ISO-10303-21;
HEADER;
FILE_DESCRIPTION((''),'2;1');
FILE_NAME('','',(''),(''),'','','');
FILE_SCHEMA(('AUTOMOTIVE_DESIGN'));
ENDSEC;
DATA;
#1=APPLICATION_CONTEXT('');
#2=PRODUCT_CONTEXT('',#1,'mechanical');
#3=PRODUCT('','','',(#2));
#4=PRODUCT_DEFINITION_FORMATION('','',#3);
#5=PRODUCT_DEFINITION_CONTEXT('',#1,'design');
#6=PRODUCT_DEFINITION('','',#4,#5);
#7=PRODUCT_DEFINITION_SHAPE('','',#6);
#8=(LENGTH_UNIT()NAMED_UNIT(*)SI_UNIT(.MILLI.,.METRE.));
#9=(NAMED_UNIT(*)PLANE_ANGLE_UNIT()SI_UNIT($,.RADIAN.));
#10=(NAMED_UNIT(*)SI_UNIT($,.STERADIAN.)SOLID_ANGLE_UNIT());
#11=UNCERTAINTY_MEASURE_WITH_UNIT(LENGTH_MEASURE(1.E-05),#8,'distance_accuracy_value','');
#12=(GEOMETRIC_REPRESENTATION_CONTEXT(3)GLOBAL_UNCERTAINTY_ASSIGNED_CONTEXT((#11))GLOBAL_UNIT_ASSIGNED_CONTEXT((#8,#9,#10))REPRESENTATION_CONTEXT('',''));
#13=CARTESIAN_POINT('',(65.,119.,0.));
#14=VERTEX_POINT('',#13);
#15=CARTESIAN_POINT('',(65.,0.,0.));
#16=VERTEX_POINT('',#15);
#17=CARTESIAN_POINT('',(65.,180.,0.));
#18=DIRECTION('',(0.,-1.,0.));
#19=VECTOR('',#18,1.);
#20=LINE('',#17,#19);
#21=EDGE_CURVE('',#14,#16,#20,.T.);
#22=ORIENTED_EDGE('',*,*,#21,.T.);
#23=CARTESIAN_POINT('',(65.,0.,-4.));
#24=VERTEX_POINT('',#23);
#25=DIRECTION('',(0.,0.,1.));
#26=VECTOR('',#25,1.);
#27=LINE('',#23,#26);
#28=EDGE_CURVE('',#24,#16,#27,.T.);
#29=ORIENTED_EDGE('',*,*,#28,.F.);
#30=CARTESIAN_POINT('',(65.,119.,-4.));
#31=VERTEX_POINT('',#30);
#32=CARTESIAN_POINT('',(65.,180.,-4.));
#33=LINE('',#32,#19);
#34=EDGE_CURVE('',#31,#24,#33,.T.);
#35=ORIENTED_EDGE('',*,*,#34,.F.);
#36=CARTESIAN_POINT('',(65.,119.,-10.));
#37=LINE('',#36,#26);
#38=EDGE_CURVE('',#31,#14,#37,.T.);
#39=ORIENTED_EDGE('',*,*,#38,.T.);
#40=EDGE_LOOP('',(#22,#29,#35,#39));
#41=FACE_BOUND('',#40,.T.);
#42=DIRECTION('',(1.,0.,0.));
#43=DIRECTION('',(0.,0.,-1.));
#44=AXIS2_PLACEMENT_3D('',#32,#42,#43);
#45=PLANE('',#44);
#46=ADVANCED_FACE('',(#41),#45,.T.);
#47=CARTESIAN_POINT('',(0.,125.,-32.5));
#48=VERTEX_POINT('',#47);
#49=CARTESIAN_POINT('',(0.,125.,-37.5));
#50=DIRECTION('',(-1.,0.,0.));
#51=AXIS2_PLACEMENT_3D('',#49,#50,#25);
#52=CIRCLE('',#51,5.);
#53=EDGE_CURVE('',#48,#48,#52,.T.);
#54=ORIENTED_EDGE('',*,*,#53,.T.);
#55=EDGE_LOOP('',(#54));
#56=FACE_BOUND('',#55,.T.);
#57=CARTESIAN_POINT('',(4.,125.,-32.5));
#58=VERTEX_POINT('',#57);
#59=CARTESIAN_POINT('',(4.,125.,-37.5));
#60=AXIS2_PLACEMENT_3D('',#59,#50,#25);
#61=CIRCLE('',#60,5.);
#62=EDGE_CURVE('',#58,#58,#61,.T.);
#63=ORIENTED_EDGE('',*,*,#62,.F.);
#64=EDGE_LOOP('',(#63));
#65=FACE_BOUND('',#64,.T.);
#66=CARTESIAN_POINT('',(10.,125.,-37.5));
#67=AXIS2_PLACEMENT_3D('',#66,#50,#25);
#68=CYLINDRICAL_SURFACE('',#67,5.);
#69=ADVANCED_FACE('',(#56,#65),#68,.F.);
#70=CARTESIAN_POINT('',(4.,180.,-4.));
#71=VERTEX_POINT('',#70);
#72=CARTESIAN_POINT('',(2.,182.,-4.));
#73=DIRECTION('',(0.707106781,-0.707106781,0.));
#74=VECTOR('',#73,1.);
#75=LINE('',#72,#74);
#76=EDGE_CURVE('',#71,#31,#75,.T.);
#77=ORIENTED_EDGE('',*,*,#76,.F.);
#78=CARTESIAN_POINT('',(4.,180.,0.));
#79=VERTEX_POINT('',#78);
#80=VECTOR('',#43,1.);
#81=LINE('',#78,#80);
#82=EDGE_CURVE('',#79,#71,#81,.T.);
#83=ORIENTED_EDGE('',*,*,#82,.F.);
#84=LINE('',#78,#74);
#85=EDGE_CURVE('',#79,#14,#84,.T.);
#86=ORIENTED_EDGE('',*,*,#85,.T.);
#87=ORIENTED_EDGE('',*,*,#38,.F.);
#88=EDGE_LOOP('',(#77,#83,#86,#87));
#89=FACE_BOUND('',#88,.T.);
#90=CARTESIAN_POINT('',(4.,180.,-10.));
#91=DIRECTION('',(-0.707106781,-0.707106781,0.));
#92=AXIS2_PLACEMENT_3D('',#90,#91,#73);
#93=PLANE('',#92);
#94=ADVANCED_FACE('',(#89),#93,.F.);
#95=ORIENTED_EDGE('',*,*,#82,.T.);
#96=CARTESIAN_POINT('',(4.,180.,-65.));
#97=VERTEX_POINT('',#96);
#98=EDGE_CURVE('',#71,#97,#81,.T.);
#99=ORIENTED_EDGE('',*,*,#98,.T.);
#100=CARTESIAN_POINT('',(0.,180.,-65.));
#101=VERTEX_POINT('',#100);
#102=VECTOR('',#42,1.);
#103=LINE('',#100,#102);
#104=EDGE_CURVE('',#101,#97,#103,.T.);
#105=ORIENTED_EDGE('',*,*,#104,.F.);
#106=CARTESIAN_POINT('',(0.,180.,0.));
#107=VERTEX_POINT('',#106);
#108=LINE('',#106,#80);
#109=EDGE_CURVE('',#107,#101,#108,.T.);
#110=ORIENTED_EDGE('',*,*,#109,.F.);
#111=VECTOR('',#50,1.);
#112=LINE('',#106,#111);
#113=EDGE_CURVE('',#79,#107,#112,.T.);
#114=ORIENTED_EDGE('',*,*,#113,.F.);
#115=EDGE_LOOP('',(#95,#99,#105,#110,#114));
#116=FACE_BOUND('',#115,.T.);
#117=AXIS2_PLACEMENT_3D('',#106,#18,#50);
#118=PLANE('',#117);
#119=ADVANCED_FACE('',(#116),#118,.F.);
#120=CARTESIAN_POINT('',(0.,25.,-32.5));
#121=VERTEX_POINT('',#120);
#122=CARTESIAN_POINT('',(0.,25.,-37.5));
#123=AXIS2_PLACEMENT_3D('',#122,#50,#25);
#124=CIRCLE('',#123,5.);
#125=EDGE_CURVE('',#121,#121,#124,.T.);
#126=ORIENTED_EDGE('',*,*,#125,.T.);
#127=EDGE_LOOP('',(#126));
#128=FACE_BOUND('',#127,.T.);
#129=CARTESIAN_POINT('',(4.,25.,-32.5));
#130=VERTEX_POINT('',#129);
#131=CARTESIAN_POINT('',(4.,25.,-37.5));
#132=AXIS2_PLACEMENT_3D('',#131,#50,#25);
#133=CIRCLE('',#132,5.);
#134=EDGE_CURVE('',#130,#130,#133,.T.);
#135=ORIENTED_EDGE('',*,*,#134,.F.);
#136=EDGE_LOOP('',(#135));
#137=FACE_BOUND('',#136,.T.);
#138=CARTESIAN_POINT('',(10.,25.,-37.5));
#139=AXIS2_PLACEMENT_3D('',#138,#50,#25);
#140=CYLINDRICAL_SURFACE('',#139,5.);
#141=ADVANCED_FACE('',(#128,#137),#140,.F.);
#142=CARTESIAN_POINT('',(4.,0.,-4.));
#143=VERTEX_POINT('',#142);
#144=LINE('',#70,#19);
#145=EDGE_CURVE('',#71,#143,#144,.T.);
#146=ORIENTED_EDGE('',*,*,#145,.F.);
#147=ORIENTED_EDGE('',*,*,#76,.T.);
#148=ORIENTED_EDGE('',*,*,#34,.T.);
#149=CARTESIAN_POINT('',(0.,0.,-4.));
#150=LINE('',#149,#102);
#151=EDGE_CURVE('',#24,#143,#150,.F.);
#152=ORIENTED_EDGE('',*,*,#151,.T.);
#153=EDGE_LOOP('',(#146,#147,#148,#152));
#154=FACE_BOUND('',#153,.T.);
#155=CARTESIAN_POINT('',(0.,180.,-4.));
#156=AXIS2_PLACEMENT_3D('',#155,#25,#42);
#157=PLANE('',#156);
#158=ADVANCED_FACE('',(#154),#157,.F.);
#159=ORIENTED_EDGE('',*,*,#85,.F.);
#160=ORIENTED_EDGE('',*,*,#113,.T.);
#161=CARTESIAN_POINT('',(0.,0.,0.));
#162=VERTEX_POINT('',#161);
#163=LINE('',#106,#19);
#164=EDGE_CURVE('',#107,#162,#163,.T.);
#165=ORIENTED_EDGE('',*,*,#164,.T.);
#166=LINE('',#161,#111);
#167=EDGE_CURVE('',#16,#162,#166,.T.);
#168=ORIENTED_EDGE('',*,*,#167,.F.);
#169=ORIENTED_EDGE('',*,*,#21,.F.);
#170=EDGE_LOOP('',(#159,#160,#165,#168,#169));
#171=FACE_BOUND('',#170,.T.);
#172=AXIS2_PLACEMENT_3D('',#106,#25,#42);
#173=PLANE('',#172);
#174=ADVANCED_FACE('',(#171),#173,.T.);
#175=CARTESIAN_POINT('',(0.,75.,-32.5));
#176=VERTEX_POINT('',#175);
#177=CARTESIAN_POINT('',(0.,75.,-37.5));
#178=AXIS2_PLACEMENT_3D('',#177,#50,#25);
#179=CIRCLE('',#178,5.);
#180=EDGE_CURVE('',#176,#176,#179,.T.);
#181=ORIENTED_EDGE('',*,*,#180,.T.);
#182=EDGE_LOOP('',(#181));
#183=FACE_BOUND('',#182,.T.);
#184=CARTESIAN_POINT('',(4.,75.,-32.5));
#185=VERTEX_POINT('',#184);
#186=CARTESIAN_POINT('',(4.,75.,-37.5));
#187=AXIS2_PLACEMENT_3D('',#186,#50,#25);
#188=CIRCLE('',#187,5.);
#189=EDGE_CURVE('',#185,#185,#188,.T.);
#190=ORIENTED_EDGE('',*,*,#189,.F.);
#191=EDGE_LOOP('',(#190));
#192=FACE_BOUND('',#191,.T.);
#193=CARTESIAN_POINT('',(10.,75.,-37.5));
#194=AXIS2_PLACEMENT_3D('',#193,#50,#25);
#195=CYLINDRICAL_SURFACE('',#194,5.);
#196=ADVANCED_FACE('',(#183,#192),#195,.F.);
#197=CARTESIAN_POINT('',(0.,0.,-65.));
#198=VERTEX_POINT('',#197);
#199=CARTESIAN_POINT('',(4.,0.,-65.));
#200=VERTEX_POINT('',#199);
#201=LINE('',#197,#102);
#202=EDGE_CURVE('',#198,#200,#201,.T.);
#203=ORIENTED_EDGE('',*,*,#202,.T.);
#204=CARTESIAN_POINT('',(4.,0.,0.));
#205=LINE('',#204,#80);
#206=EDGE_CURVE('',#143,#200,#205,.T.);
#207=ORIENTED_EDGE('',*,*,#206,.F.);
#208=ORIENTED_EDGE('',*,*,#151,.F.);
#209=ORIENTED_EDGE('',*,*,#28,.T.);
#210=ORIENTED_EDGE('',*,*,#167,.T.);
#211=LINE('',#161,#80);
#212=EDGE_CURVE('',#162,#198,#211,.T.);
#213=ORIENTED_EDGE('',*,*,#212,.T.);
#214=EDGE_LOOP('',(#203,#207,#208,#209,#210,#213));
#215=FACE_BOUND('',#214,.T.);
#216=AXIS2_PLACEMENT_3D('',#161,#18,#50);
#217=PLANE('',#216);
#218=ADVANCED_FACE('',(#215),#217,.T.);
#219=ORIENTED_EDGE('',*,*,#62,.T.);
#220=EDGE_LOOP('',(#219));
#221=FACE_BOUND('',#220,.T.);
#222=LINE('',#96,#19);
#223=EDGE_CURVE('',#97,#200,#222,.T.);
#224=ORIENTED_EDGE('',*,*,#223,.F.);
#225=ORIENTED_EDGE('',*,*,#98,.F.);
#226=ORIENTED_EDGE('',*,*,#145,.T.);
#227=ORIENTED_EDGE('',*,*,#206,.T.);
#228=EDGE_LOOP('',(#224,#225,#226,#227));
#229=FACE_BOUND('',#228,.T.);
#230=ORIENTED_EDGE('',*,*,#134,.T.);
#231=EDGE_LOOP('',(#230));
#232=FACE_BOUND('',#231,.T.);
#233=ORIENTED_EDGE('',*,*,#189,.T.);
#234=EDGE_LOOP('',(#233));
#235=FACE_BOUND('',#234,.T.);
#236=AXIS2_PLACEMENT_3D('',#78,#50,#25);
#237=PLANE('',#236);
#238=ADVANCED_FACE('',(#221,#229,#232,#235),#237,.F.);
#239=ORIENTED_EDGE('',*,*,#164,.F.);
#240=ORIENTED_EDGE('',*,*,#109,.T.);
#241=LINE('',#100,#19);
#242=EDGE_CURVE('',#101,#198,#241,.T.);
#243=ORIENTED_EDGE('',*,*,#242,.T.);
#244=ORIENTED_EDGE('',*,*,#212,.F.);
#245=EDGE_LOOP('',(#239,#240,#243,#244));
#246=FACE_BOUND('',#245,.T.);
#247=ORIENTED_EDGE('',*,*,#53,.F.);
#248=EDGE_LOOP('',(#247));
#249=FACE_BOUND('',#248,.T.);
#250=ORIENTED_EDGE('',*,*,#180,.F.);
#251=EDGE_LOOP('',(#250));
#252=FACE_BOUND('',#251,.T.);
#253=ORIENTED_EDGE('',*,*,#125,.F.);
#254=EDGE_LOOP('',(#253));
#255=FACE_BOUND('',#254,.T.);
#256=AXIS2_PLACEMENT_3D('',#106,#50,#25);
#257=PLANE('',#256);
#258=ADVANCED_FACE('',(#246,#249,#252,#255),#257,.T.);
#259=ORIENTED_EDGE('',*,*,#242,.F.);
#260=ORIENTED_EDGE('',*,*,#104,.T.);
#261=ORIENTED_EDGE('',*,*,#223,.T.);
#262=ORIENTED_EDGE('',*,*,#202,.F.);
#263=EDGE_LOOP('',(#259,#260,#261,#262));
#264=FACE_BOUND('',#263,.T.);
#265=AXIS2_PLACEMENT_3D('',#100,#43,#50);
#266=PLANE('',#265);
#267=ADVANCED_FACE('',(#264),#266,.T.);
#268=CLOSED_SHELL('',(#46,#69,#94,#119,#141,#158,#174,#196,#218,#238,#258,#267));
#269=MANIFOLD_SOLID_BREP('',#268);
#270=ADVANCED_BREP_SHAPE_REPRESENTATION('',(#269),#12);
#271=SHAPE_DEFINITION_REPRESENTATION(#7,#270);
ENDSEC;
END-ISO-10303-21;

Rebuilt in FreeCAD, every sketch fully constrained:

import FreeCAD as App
import Part
import Sketcher

V = App.Vector
Q = App.Units.Quantity

doc = App.newDocument("Part")
body = doc.addObject("PartDesign::Body", "Body")

# Sketch on XZ plane
sketch1 = doc.addObject("Sketcher::SketchObject", "Sketch")
body.addObject(sketch1)
sketch1.AttachmentSupport = (doc.XZ_Plane, [""])
sketch1.MapMode = "FlatFace"
sketch1.addGeometry([
    Part.LineSegment(V(0, -65, 0), V(0, 0, 0)),  # 0
    Part.LineSegment(V(0, 0, 0), V(65, 0, 0)),  # 1
    Part.LineSegment(V(65, 0, 0), V(65, -4, 0)),  # 2
    Part.LineSegment(V(65, -4, 0), V(4, -4, 0)),  # 3
    Part.LineSegment(V(4, -4, 0), V(4, -65, 0)),  # 4
    Part.LineSegment(V(4, -65, 0), V(0, -65, 0)),  # 5
], False)
sketch1.addConstraint([
    Sketcher.Constraint("Coincident", 0, 2, 1, 1),
    Sketcher.Constraint("Coincident", 1, 2, 2, 1),
    Sketcher.Constraint("Coincident", 2, 2, 3, 1),
    Sketcher.Constraint("Coincident", 3, 2, 4, 1),
    Sketcher.Constraint("Coincident", 4, 2, 5, 1),
    Sketcher.Constraint("Coincident", 5, 2, 0, 1),
    Sketcher.Constraint("Vertical", 0),
    Sketcher.Constraint("Horizontal", 1),
    Sketcher.Constraint("Vertical", 2),
    Sketcher.Constraint("Horizontal", 3),
    Sketcher.Constraint("Vertical", 4),
    Sketcher.Constraint("Horizontal", 5),
    Sketcher.Constraint("Coincident", 0, 2, -1, 1),
    Sketcher.Constraint("Equal", 1, 0),
    Sketcher.Constraint("Equal", 5, 2),
    Sketcher.Constraint("DistanceX", 1, 1, 1, 2, Q("65 mm")),
    Sketcher.Constraint("DistanceX", 3, 2, 3, 1, Q("61 mm")),
])
pad1 = doc.addObject("PartDesign::Pad", "Pad")
body.addObject(pad1)
pad1.Profile = sketch1
pad1.Length = 180
pad1.Reversed = True

# Sketch on YZ plane
sketch2 = doc.addObject("Sketcher::SketchObject", "Sketch001")
body.addObject(sketch2)
sketch2.AttachmentSupport = (doc.YZ_Plane, [""])
sketch2.MapMode = "FlatFace"
sketch2.addGeometry([
    Part.Circle(V(25, -38, 0), V(0, 0, 1), 5),
    Part.Circle(V(75, -38, 0), V(0, 0, 1), 5),
    Part.Circle(V(125, -38, 0), V(0, 0, 1), 5),
], False)
sketch2.addConstraint([
    Sketcher.Constraint("Equal", 0, 1),
    Sketcher.Constraint("Equal", 1, 2),
    Sketcher.Constraint("Horizontal", 0, 3, 1, 3),
    Sketcher.Constraint("Horizontal", 1, 3, 2, 3),
    Sketcher.Constraint("Diameter", 0, Q("10 mm")),
    Sketcher.Constraint("DistanceX", -1, 1, 0, 3, Q("25 mm")),
    Sketcher.Constraint("DistanceX", -1, 1, 1, 3, Q("75 mm")),
    Sketcher.Constraint("DistanceX", -1, 1, 2, 3, Q("125 mm")),
    Sketcher.Constraint("DistanceY", 0, 3, -1, 1, Q("37.5 mm")),
])
pocket1 = doc.addObject("PartDesign::Pocket", "Pocket")
body.addObject(pocket1)
pocket1.Profile = sketch2
pocket1.Length = 10
pocket1.Reversed = True

# Sketch on XY plane
sketch3 = doc.addObject("Sketcher::SketchObject", "Sketch002")
body.addObject(sketch3)
sketch3.AttachmentSupport = (doc.XY_Plane, [""])
sketch3.MapMode = "FlatFace"
sketch3.addGeometry([
    Part.LineSegment(V(65, 180, 0), V(4, 180, 0)),
    Part.LineSegment(V(4, 180, 0), V(65, 119, 0)),
    Part.LineSegment(V(65, 119, 0), V(65, 180, 0)),
], False)
sketch3.addConstraint([
    Sketcher.Constraint("Coincident", 0, 2, 1, 1),
    Sketcher.Constraint("Coincident", 1, 2, 2, 1),
    Sketcher.Constraint("Coincident", 2, 2, 0, 1),
    Sketcher.Constraint("Horizontal", 0),
    Sketcher.Constraint("Vertical", 2),
    Sketcher.Constraint("Equal", 0, 2),
    Sketcher.Constraint("DistanceX", 0, 2, 0, 1, Q("61 mm")),
    Sketcher.Constraint("DistanceX", -1, 1, 0, 2, Q("4 mm")),
    Sketcher.Constraint("DistanceY", -1, 1, 0, 2, Q("180 mm")),
])
pocket2 = doc.addObject("PartDesign::Pocket", "Pocket001")
body.addObject(pocket2)
pocket2.Profile = sketch3
pocket2.Length = 10

doc.recompute()
